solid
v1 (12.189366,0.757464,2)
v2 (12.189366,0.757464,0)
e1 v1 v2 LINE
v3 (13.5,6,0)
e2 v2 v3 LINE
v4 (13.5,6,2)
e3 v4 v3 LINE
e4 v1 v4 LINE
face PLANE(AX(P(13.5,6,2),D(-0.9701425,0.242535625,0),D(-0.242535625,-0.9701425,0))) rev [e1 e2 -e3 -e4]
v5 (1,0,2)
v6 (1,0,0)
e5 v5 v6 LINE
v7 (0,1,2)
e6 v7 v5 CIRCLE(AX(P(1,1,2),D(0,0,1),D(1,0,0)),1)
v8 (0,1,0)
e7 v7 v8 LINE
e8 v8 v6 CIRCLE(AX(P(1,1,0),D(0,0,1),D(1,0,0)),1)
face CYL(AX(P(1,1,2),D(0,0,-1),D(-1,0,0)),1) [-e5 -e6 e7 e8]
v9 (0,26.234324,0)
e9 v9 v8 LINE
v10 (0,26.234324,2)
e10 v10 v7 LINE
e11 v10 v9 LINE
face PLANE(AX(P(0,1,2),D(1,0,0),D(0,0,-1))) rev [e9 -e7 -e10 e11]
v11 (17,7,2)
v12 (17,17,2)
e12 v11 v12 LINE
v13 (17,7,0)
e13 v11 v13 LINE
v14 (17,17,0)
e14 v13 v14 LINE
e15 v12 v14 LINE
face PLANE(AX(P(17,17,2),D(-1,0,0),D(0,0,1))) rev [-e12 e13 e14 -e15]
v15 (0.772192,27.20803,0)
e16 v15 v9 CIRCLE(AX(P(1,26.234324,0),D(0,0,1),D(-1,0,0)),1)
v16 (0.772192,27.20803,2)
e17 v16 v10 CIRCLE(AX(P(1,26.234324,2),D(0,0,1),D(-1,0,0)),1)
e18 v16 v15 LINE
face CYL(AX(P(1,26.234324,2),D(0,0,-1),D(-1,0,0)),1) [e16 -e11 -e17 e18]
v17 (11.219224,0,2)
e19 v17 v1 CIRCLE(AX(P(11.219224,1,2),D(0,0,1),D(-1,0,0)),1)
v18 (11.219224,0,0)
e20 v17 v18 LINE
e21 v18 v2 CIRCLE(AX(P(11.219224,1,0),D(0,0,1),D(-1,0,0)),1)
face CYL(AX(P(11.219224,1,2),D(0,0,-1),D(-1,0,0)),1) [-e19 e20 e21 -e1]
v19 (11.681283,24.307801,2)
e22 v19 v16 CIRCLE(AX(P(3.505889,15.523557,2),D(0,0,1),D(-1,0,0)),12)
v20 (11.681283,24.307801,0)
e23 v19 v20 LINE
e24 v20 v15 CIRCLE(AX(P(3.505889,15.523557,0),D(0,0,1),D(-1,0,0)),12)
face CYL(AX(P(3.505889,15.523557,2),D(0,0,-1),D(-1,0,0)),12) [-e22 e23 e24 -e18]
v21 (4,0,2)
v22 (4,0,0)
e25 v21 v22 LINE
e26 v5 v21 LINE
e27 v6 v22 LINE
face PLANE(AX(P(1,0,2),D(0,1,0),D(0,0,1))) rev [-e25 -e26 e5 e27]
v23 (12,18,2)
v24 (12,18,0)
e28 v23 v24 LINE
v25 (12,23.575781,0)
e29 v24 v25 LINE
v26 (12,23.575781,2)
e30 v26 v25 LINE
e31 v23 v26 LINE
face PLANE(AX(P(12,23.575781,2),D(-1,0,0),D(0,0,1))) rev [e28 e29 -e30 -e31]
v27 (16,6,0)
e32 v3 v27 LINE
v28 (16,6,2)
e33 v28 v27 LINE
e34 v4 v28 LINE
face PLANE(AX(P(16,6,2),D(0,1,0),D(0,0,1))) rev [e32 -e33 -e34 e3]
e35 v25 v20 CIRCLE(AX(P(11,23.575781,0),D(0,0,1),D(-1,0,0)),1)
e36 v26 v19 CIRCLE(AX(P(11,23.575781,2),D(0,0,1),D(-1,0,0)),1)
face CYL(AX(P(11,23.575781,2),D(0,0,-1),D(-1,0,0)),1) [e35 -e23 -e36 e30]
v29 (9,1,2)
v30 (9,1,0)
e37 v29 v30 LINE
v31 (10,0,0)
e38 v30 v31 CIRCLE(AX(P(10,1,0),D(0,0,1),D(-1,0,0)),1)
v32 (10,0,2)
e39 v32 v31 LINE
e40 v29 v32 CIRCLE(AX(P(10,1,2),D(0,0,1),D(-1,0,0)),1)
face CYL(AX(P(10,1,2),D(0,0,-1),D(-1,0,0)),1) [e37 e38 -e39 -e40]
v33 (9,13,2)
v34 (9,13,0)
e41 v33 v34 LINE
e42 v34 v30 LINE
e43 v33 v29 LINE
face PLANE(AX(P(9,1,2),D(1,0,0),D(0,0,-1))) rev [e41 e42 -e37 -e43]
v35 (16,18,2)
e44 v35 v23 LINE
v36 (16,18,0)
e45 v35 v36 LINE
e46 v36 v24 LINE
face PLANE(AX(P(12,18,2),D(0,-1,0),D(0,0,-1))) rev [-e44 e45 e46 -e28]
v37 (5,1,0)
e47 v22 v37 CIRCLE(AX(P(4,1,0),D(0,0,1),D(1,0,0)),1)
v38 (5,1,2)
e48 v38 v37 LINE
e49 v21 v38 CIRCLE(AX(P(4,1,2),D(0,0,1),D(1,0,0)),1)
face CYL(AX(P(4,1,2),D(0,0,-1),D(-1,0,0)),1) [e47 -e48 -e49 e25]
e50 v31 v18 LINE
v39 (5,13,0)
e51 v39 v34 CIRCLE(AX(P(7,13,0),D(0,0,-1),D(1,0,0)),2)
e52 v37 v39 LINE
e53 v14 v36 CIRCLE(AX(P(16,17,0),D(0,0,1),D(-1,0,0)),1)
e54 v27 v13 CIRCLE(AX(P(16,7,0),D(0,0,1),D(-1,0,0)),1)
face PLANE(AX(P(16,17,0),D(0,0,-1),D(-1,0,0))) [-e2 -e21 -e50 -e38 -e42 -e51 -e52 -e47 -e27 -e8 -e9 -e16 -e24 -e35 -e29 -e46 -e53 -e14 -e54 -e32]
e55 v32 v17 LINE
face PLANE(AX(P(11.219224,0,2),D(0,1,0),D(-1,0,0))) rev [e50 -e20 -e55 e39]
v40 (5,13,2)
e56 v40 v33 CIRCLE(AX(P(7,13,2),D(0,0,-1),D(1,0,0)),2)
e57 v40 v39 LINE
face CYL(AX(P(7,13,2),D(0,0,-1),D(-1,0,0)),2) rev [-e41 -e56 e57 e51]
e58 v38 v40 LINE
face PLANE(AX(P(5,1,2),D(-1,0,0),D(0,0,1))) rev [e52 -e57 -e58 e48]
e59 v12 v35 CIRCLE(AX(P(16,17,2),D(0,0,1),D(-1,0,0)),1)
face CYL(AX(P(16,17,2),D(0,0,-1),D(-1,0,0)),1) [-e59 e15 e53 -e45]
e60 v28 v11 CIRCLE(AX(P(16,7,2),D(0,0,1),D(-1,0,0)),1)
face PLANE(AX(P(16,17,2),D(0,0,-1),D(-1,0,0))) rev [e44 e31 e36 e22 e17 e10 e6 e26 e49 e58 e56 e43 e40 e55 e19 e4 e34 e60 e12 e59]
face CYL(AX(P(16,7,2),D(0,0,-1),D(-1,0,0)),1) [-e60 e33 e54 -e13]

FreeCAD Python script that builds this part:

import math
import FreeCAD as App
import Part
import Sketcher

doc = App.newDocument("Part")
body = doc.addObject("PartDesign::Body", "Body")

sketch1 = body.newObject("Sketcher::SketchObject", "Sketch")
sketch1.AttachmentSupport = (doc.getObject("XY_Plane"), [""])
sketch1.MapMode = "FlatFace"
sketch1.addGeometry([
    Part.LineSegment(App.Vector(0, 26.2, 0), App.Vector(0, 1, 0)),
    Part.ArcOfCircle(Part.Circle(App.Vector(1, 1, 0), App.Vector(0, 0, 1), 1), math.radians(-180), math.radians(-90)),
    Part.LineSegment(App.Vector(1, 0, 0), App.Vector(4, 0, 0)),
    Part.ArcOfCircle(Part.Circle(App.Vector(4, 1, 0), App.Vector(0, 0, 1), 1), math.radians(-90), math.radians(0)),
    Part.LineSegment(App.Vector(5, 1, 0), App.Vector(5, 13, 0)),
    Part.ArcOfCircle(Part.Circle(App.Vector(7, 13, 0), App.Vector(0, 0, 1), 2), math.radians(0), math.radians(180)),
    Part.LineSegment(App.Vector(9, 13, 0), App.Vector(9, 1, 0)),
    Part.ArcOfCircle(Part.Circle(App.Vector(10, 1, 0), App.Vector(0, 0, 1), 1), math.radians(-180), math.radians(-90)),
    Part.LineSegment(App.Vector(10, 0, 0), App.Vector(11.2, 0, 0)),
    Part.ArcOfCircle(Part.Circle(App.Vector(11.2, 1, 0), App.Vector(0, 0, 1), 1), math.radians(-90), math.radians(-14)),
    Part.LineSegment(App.Vector(12.2, 0.8, 0), App.Vector(13.5, 6, 0)),
    Part.LineSegment(App.Vector(13.5, 6, 0), App.Vector(16, 6, 0)),
    Part.ArcOfCircle(Part.Circle(App.Vector(16, 7, 0), App.Vector(0, 0, 1), 1), math.radians(-90), math.radians(0)),
    Part.LineSegment(App.Vector(17, 7, 0), App.Vector(17, 17, 0)),
    Part.ArcOfCircle(Part.Circle(App.Vector(16, 17, 0), App.Vector(0, 0, 1), 1), math.radians(0), math.radians(90)),
    Part.LineSegment(App.Vector(16, 18, 0), App.Vector(12, 18, 0)),
    Part.LineSegment(App.Vector(12, 18, 0), App.Vector(12, 23.6, 0)),
    Part.ArcOfCircle(Part.Circle(App.Vector(11, 23.6, 0), App.Vector(0, 0, 1), 1), math.radians(0), math.radians(47)),
    Part.ArcOfCircle(Part.Circle(App.Vector(3.5, 15.5, 0), App.Vector(0, 0, 1), 12), math.radians(47), math.radians(103)),
    Part.ArcOfCircle(Part.Circle(App.Vector(1, 26.2, 0), App.Vector(0, 0, 1), 1), math.radians(103), math.radians(180)),
], False)
sketch1.addConstraint([
    Sketcher.Constraint("Tangent", 0, 2, 1, 1),
    Sketcher.Constraint("Tangent", 1, 2, 2, 1),
    Sketcher.Constraint("Tangent", 2, 2, 3, 1),
    Sketcher.Constraint("Tangent", 3, 2, 4, 1),
    Sketcher.Constraint("Tangent", 4, 2, 5, 2),
    Sketcher.Constraint("Tangent", 5, 1, 6, 1),
    Sketcher.Constraint("Tangent", 6, 2, 7, 1),
    Sketcher.Constraint("Tangent", 7, 2, 8, 1),
    Sketcher.Constraint("Tangent", 8, 2, 9, 1),
    Sketcher.Constraint("Tangent", 9, 2, 10, 1),
    Sketcher.Constraint("Coincident", 10, 2, 11, 1),
    Sketcher.Constraint("Tangent", 11, 2, 12, 1),
    Sketcher.Constraint("Tangent", 12, 2, 13, 1),
    Sketcher.Constraint("Tangent", 13, 2, 14, 1),
    Sketcher.Constraint("Tangent", 14, 2, 15, 1),
    Sketcher.Constraint("Coincident", 15, 2, 16, 1),
    Sketcher.Constraint("Tangent", 16, 2, 17, 1),
    Sketcher.Constraint("Tangent", 17, 2, 18, 1),
    Sketcher.Constraint("Tangent", 18, 2, 19, 1),
    Sketcher.Constraint("Tangent", 19, 2, 0, 1),
    Sketcher.Constraint("Vertical", 0),
    Sketcher.Constraint("Horizontal", 2),
    Sketcher.Constraint("Vertical", 4),
    Sketcher.Constraint("Vertical", 6),
    Sketcher.Constraint("Horizontal", 8),
    Sketcher.Constraint("Horizontal", 11),
    Sketcher.Constraint("Vertical", 13),
    Sketcher.Constraint("Horizontal", 15),
    Sketcher.Constraint("Vertical", 16),
    Sketcher.Constraint("Equal", 1, 3),
    Sketcher.Constraint("Equal", 3, 7),
    Sketcher.Constraint("Equal", 7, 9),
    Sketcher.Constraint("Equal", 9, 12),
    Sketcher.Constraint("Equal", 12, 14),
    Sketcher.Constraint("Equal", 14, 17),
    Sketcher.Constraint("Equal", 17, 19),
    Sketcher.Constraint("PointOnObject", 0, 2, -2),
    Sketcher.Constraint("PointOnObject", 1, 2, -1),
    Sketcher.Constraint("PointOnObject", 7, 2, -1),
    Sketcher.Constraint("Radius", 1, 1.0),
    Sketcher.Constraint("Radius", 5, 2.0),
    Sketcher.Constraint("Radius", 18, 12.0),
    Sketcher.Constraint("DistanceX", 2, 1, 2, 2, 3.0),
    Sketcher.Constraint("DistanceX", 15, 2, 15, 1, 4.0),
    Sketcher.Constraint("DistanceY", 4, 1, 4, 2, 12.0),
    Sketcher.Constraint("DistanceY", 13, 1, 13, 2, 10.0),
    Sketcher.Constraint("DistanceX", 11, 1, 11, 2, 2.5),
    Sketcher.Constraint("DistanceX", -1, 1, 12, 3, 16.0),
    Sketcher.Constraint("DistanceY", -1, 1, 12, 3, 7.0),
    Sketcher.Constraint("DistanceY", 16, 1, 16, 2, 5.575781),
    Sketcher.Constraint("DistanceY", -1, 1, 17, 2, 24.307801),
    Sketcher.Constraint("DistanceX", 8, 1, 8, 2, 1.219224),
])
pad1 = body.newObject("PartDesign::Pad", "Pad")
pad1.Profile = sketch1
pad1.Length = 2

doc.recompute()
